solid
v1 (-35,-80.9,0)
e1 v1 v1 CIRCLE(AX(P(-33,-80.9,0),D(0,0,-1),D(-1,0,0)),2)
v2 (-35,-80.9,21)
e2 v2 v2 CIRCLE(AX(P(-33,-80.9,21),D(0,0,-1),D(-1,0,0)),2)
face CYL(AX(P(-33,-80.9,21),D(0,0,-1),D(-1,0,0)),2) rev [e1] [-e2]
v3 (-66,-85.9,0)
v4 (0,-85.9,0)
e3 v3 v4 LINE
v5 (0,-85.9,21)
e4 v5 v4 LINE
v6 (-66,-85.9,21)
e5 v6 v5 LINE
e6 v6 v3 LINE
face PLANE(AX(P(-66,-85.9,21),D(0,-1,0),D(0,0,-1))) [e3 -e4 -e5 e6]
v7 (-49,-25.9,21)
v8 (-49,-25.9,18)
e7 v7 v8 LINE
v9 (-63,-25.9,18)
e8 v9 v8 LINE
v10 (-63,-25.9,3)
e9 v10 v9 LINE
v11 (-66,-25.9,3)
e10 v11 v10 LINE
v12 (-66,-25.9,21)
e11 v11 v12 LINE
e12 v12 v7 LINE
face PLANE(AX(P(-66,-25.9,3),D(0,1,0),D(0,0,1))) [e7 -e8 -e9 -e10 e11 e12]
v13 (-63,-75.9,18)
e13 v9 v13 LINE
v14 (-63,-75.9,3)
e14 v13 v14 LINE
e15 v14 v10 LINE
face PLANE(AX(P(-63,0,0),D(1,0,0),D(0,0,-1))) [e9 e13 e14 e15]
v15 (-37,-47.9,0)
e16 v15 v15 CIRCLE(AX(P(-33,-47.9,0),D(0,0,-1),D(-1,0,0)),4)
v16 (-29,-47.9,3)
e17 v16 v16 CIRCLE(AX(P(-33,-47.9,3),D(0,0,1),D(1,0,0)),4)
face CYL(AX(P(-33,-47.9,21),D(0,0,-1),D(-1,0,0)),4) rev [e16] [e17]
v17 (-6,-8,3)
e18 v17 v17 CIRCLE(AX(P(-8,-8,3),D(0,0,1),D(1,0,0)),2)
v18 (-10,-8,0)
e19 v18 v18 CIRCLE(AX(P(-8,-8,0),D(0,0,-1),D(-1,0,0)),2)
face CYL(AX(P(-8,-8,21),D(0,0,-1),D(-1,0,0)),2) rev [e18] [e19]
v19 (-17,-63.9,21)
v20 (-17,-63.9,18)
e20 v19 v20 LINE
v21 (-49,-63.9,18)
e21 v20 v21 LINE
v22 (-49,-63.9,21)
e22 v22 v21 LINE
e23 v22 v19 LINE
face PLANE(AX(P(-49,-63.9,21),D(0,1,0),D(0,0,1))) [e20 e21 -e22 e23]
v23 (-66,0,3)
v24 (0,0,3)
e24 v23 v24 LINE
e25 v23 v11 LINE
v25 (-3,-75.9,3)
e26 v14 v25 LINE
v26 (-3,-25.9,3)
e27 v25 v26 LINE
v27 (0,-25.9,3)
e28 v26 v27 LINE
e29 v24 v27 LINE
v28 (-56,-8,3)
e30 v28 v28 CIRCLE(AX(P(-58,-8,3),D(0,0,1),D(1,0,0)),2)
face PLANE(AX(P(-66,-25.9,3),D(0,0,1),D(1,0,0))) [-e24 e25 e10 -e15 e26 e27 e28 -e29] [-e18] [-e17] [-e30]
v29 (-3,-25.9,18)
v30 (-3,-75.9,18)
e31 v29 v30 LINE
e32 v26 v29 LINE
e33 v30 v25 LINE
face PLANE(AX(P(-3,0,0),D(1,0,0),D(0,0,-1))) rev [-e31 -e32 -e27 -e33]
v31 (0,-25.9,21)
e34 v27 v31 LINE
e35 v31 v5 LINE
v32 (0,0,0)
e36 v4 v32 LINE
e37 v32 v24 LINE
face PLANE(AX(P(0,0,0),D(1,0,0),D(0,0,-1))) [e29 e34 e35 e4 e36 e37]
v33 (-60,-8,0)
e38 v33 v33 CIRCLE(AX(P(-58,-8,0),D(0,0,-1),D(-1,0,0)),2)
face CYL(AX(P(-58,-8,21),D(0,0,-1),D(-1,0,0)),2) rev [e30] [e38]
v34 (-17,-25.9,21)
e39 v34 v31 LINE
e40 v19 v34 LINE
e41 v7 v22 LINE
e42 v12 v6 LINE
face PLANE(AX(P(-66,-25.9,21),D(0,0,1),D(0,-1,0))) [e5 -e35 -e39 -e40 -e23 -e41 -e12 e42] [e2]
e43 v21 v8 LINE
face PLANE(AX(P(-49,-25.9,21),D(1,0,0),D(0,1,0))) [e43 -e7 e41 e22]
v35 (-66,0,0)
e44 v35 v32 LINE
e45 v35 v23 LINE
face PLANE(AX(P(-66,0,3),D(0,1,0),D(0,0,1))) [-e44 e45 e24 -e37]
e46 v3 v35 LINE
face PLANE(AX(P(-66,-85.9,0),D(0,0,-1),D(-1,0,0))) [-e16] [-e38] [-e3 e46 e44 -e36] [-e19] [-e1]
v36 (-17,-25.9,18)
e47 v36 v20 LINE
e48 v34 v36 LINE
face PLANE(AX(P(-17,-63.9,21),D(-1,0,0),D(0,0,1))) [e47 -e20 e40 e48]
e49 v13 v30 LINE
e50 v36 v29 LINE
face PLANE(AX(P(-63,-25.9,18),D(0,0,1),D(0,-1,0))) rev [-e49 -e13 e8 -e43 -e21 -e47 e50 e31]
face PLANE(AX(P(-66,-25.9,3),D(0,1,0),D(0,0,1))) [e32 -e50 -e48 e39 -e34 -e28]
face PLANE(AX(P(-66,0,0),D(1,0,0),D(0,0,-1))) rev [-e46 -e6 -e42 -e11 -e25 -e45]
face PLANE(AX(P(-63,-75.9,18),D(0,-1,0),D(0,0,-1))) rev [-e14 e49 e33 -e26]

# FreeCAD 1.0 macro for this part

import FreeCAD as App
import Part
import Sketcher
from FreeCAD import Vector
Q = App.Units.Quantity

doc = App.newDocument("Part")
params = doc.addObject("Spreadsheet::Sheet", "Params")
for row, (alias, value) in enumerate([
    ("sketch1_width", "60 mm"),
    ("sketch1_height", "18 mm"),
    ("sketch1_height2", "21 mm"),
    ("sketch1_width2", "85.9 mm"),
    ("pad1_length", "66 mm"),
    ("sketch2_width", "50 mm"),
    ("sketch2_height", "15 mm"),
    ("pocket1_length", "60 mm"),
    ("sketch3_width", "32 mm"),
    ("sketch3_height", "38 mm"),
    ("sketch4_diameter", "8 mm"),
    ("sketch4_diameter2", "4 mm"),
], start=1):
    params.set(f"A{row}", alias)
    params.set(f"B{row}", "=" + value)
    params.setAlias(f"B{row}", alias)

body = doc.addObject("PartDesign::Body", "Body")

# Sketch on YZ plane
sketch1 = body.newObject("Sketcher::SketchObject", "Sketch")
sketch1.AttachmentSupport = (doc.getObject("YZ_Plane"), [""])
sketch1.MapMode = "FlatFace"
sketch1.addGeometry([
    Part.LineSegment(Vector(-25.9, 3, 0), Vector(-25.9, 21, 0)),  # 0
    Part.LineSegment(Vector(-25.9, 21, 0), Vector(-85.9, 21, 0)),  # 1
    Part.LineSegment(Vector(-85.9, 21, 0), Vector(-85.9, 0, 0)),  # 2
    Part.LineSegment(Vector(-85.9, 0, 0), Vector(0, 0, 0)),  # 3
    Part.LineSegment(Vector(0, 0, 0), Vector(0, 3, 0)),  # 4
    Part.LineSegment(Vector(0, 3, 0), Vector(-25.9, 3, 0)),  # 5
], False)
sketch1.addConstraint([
    Sketcher.Constraint("Coincident", 0, 2, 1, 1),
    Sketcher.Constraint("Coincident", 1, 2, 2, 1),
    Sketcher.Constraint("Coincident", 2, 2, 3, 1),
    Sketcher.Constraint("Coincident", 3, 2, 4, 1),
    Sketcher.Constraint("Coincident", 4, 2, 5, 1),
    Sketcher.Constraint("Coincident", 5, 2, 0, 1),
    Sketcher.Constraint("Vertical", 0),
    Sketcher.Constraint("Horizontal", 1),
    Sketcher.Constraint("Vertical", 2),
    Sketcher.Constraint("Horizontal", 3),
    Sketcher.Constraint("Vertical", 4),
    Sketcher.Constraint("Horizontal", 5),
    Sketcher.Constraint("Coincident", 3, 2, -1, 1),
    Sketcher.Constraint("DistanceX", 1, 2, 1, 1, Q("60 mm")),
    Sketcher.Constraint("DistanceY", 0, 1, 0, 2, Q("18 mm")),
    Sketcher.Constraint("DistanceY", 2, 2, 2, 1, Q("21 mm")),
    Sketcher.Constraint("DistanceX", 3, 1, 3, 2, Q("85.9 mm")),
])
sketch1.setExpression("Constraints[13]", "Params.sketch1_width")
sketch1.setExpression("Constraints[14]", "Params.sketch1_height")
sketch1.setExpression("Constraints[15]", "Params.sketch1_height2")
sketch1.setExpression("Constraints[16]", "Params.sketch1_width2")
pad1 = body.newObject("PartDesign::Pad", "Pad")
pad1.Profile = sketch1
pad1.setExpression("Length", "Params.pad1_length")
pad1.Reversed = True

# Sketch on YZ plane
sketch2 = body.newObject("Sketcher::SketchObject", "Sketch001")
sketch2.AttachmentSupport = (doc.getObject("YZ_Plane"), [""])
sketch2.MapMode = "FlatFace"
sketch2.AttachmentOffset = App.Placement(Vector(0, 0, -3), App.Rotation())
sketch2.addGeometry([
    Part.LineSegment(Vector(-26, 18, 0), Vector(-76, 18, 0)),
    Part.LineSegment(Vector(-76, 18, 0), Vector(-76, 3, 0)),
    Part.LineSegment(Vector(-76, 3, 0), Vector(-26, 3, 0)),
    Part.LineSegment(Vector(-26, 3, 0), Vector(-26, 18, 0)),
], False)
sketch2.addConstraint([
    Sketcher.Constraint("Coincident", 0, 2, 1, 1),
    Sketcher.Constraint("Coincident", 1, 2, 2, 1),
    Sketcher.Constraint("Coincident", 2, 2, 3, 1),
    Sketcher.Constraint("Coincident", 3, 2, 0, 1),
    Sketcher.Constraint("Horizontal", 0),
    Sketcher.Constraint("Vertical", 1),
    Sketcher.Constraint("Horizontal", 2),
    Sketcher.Constraint("Vertical", 3),
    Sketcher.Constraint("DistanceX", 0, 2, 0, 1, Q("50 mm")),
    Sketcher.Constraint("DistanceY", 1, 2, 1, 1, Q("15 mm")),
    Sketcher.Constraint("DistanceY", -1, 1, 0, 2, Q("18 mm")),
    Sketcher.Constraint("DistanceX", 0, 2, -1, 1, Q("75.9 mm")),
])
sketch2.setExpression("Constraints[8]", "Params.sketch2_width")
sketch2.setExpression("Constraints[9]", "Params.sketch2_height")
pocket1 = body.newObject("PartDesign::Pocket", "Pocket")
pocket1.Profile = sketch2
pocket1.setExpression("Length", "Params.pocket1_length")

# Sketch on XY plane
sketch3 = body.newObject("Sketcher::SketchObject", "Sketch002")
sketch3.AttachmentSupport = (doc.getObject("XY_Plane"), [""])
sketch3.MapMode = "FlatFace"
sketch3.AttachmentOffset = App.Placement(Vector(0, 0, 3), App.Rotation())
sketch3.addGeometry([
    Part.LineSegment(Vector(-49, -26, 0), Vector(-49, -64, 0)),
    Part.LineSegment(Vector(-49, -64, 0), Vector(-17, -64, 0)),
    Part.LineSegment(Vector(-17, -64, 0), Vector(-17, -26, 0)),
    Part.LineSegment(Vector(-17, -26, 0), Vector(-49, -26, 0)),
], False)
sketch3.addConstraint([
    Sketcher.Constraint("Coincident", 0, 2, 1, 1),
    Sketcher.Constraint("Coincident", 1, 2, 2, 1),
    Sketcher.Constraint("Coincident", 2, 2, 3, 1),
    Sketcher.Constraint("Coincident", 3, 2, 0, 1),
    Sketcher.Constraint("Vertical", 0),
    Sketcher.Constraint("Horizontal", 1),
    Sketcher.Constraint("Vertical", 2),
    Sketcher.Constraint("Horizontal", 3),
    Sketcher.Constraint("DistanceX", 1, 1, 1, 2, Q("32 mm")),
    Sketcher.Constraint("DistanceY", 0, 2, 0, 1, Q("38 mm")),
    Sketcher.Constraint("DistanceX", 0, 2, -1, 1, Q("49 mm")),
    Sketcher.Constraint("DistanceY", 0, 2, -1, 1, Q("63.9 mm")),
])
sketch3.setExpression("Constraints[8]", "Params.sketch3_width")
sketch3.setExpression("Constraints[9]", "Params.sketch3_height")
pocket2 = body.newObject("PartDesign::Pocket", "Pocket001")
pocket2.Profile = sketch3
pocket2.Type = "ThroughAll"
pocket2.Reversed = True

# Sketch on XY plane
sketch4 = body.newObject("Sketcher::SketchObject", "Sketch003")
sketch4.AttachmentSupport = (doc.getObject("XY_Plane"), [""])
sketch4.MapMode = "FlatFace"
sketch4.addGeometry([
    Part.Circle(Vector(-33, -47.9, 0), Vector(0, 0, 1), 4),
    Part.Circle(Vector(-33, -80.9, 0), Vector(0, 0, 1), 2),
    Part.Circle(Vector(-58, -8, 0), Vector(0, 0, 1), 2),
    Part.Circle(Vector(-8, -8, 0), Vector(0, 0, 1), 2),
], False)
sketch4.addConstraint([
    Sketcher.Constraint("Equal", 1, 2),
    Sketcher.Constraint("Equal", 2, 3),
    Sketcher.Constraint("Horizontal", 2, 3, 3, 3),
    Sketcher.Constraint("Vertical", 0, 3, 1, 3),
    Sketcher.Constraint("Diameter", 0, Q("8 mm")),
    Sketcher.Constraint("Diameter", 1, Q("4 mm")),
    Sketcher.Constraint("DistanceX", 0, 3, -1, 1, Q("33 mm")),
    Sketcher.Constraint("DistanceX", 2, 3, -1, 1, Q("58 mm")),
    Sketcher.Constraint("DistanceY", 2, 3, -1, 1, Q("8 mm")),
    Sketcher.Constraint("DistanceX", 3, 3, -1, 1, Q("8 mm")),
    Sketcher.Constraint("DistanceY", 1, 3, 0, 3, Q("33 mm")),
    Sketcher.Constraint("DistanceY", 0, 3, -1, 1, Q("47.9 mm")),
])
sketch4.setExpression("Constraints[4]", "Params.sketch4_diameter")
sketch4.setExpression("Constraints[5]", "Params.sketch4_diameter2")
pocket3 = body.newObject("PartDesign::Pocket", "Pocket002")
pocket3.Profile = sketch4
pocket3.Type = "ThroughAll"
pocket3.Reversed = True

doc.recompute()
